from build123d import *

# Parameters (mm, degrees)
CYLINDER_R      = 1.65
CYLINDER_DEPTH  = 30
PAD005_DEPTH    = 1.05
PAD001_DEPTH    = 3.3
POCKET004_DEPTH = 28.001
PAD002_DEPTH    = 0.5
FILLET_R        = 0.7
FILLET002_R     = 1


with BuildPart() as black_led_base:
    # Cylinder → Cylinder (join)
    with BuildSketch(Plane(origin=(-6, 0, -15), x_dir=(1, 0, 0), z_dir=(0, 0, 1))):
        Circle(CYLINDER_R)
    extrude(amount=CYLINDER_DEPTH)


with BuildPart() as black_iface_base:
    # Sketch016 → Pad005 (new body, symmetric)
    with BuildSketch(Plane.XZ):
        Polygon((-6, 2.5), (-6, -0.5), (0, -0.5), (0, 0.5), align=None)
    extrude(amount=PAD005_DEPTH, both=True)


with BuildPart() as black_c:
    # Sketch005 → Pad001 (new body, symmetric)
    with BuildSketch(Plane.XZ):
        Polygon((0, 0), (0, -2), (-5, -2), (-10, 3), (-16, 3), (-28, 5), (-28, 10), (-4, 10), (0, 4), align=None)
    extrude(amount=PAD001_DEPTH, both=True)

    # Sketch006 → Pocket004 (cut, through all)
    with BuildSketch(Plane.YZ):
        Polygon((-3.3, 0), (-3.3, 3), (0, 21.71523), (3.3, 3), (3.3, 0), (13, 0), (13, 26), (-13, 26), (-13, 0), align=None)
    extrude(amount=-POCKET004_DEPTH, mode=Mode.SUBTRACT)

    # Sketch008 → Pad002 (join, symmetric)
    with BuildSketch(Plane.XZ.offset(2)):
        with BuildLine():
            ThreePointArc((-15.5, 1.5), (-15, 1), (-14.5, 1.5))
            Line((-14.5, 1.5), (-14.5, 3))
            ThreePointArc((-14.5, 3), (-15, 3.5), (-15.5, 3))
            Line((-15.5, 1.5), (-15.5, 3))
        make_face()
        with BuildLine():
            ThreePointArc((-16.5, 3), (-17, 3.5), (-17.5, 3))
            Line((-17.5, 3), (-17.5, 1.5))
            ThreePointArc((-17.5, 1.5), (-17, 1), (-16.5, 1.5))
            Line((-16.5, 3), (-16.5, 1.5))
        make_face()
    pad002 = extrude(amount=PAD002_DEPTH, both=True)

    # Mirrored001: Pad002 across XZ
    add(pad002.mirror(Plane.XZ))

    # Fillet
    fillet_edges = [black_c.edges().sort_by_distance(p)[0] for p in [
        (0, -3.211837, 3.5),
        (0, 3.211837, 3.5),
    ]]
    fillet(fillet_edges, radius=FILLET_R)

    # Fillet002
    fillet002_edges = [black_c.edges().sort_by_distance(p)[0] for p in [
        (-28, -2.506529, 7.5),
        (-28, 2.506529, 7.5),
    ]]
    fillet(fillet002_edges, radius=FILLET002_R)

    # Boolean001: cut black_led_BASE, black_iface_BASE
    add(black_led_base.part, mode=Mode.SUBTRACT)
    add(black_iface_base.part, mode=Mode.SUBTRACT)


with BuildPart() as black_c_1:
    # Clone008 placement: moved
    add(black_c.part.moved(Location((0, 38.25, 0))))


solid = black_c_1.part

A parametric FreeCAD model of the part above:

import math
import FreeCAD as App
import Part
import Sketcher
Q = App.Units.Quantity


def edges_at(feature, points):
    """Names of the edges that pass closest to the given points."""
    edges = feature.Shape.Edges
    near = lambda p: min(range(len(edges)), key=lambda i: edges[i].distToShape(Part.Vertex(*p))[0])
    return sorted({f"Edge{near(p) + 1}" for p in points})


def add_polygon(sketch, points):
    """Adds a closed chain of lines whose ends are joined by coincident constraints."""
    first, n = sketch.GeometryCount, len(points)
    for a, b in zip(points, points[1:] + points[:1]):
        sketch.addGeometry(Part.LineSegment(App.Vector(*a, 0), App.Vector(*b, 0)), False)
    for i in range(n):
        sketch.addConstraint(Sketcher.Constraint("Coincident", first + i, 2, first + (i + 1) % n, 1))

doc = App.newDocument("Part")
params = doc.addObject("Spreadsheet::Sheet", "Params")
for row, (alias, value) in enumerate([
    ("sketch1_diameter", "3.3 mm"),
    ("pad1_length", "30 mm"),
    ("sketch2_width", "6 mm"),
    ("sketch2_height", "3 mm"),
    ("sketch2_height2", "1 mm"),
    ("pad2_length", "2.1 mm"),
    ("sketch3_width", "24 mm"),
    ("sketch3_width2", "6 mm"),
    ("sketch3_width3", "5 mm"),
    ("pad3_length", "6.6 mm"),
    ("sketch4_width", "26 mm"),
    ("sketch4_height", "3 mm"),
    ("sketch4_width2", "9.7 mm"),
    ("sketch5_radius", "0.5 mm"),
    ("sketch5_height", "1.5 mm"),
    ("pad4_length", "1 mm"),
    ("fillet_radius", "0.7 mm"),
    ("fillet2_radius", "1 mm"),
], start=1):
    params.set(f"A{row}", alias)
    params.set(f"B{row}", "=" + value)
    params.setAlias(f"B{row}", alias)

body = doc.addObject("PartDesign::Body", "Body")

sketch1 = body.newObject("Sketcher::SketchObject", "Sketch")
sketch1.AttachmentSupport = (doc.getObject("XY_Plane"), [""])
sketch1.MapMode = "FlatFace"
sketch1.AttachmentOffset = App.Placement(App.Vector(0, 0, -15), App.Rotation())
sketch1.addGeometry(Part.Circle(App.Vector(-6, 0, 0), App.Vector(0, 0, 1), 1.65), False)
sketch1.addConstraint(Sketcher.Constraint("PointOnObject", 0, 3, -1))
sketch1.addConstraint(Sketcher.Constraint("Diameter", 0, Q("3.3 mm")))
sketch1.addConstraint(Sketcher.Constraint("DistanceX", 0, 3, -1, 1, Q("6 mm")))
sketch1.setExpression("Constraints[1]", "Params.sketch1_diameter")
pad1 = body.newObject("PartDesign::Pad", "Pad")
pad1.Profile = sketch1
pad1.setExpression("Length", "Params.pad1_length")
body2 = doc.addObject("PartDesign::Body", "Body001")

sketch2 = body2.newObject("Sketcher::SketchObject", "Sketch001")
sketch2.AttachmentSupport = (doc.getObject("XZ_Plane001"), [""])
sketch2.MapMode = "FlatFace"
add_polygon(sketch2, [(-6, 2.5), (-6, -0.5), (0, -0.5), (0, 0.5)])
sketch2.addConstraint(Sketcher.Constraint("Vertical", 0))
sketch2.addConstraint(Sketcher.Constraint("Horizontal", 1))
sketch2.addConstraint(Sketcher.Constraint("Vertical", 2))
sketch2.addConstraint(Sketcher.Constraint("Symmetric", 1, 2, 2, 2, -1, 1))
sketch2.addConstraint(Sketcher.Constraint("DistanceX", 1, 1, 1, 2, Q("6 mm")))
sketch2.addConstraint(Sketcher.Constraint("DistanceY", 0, 2, 0, 1, Q("3 mm")))
sketch2.addConstraint(Sketcher.Constraint("DistanceY", 2, 1, 2, 2, Q("1 mm")))
sketch2.setExpression("Constraints[8]", "Params.sketch2_width")
sketch2.setExpression("Constraints[9]", "Params.sketch2_height")
sketch2.setExpression("Constraints[10]", "Params.sketch2_height2")
pad2 = body2.newObject("PartDesign::Pad", "Pad001")
pad2.Profile = sketch2
pad2.setExpression("Length", "Params.pad2_length")
pad2.Midplane = True
body3 = doc.addObject("PartDesign::Body", "Body002")

sketch3 = body3.newObject("Sketcher::SketchObject", "Sketch002")
sketch3.AttachmentSupport = (doc.getObject("XZ_Plane002"), [""])
sketch3.MapMode = "FlatFace"
add_polygon(sketch3, [(0, -2), (0, 4), (-4, 10), (-28, 10), (-28, 5), (-16, 3), (-10, 3), (-5, -2)])
sketch3.addConstraint(Sketcher.Constraint("Vertical", 0))
sketch3.addConstraint(Sketcher.Constraint("Horizontal", 2))
sketch3.addConstraint(Sketcher.Constraint("Vertical", 3))
sketch3.addConstraint(Sketcher.Constraint("Horizontal", 5))
sketch3.addConstraint(Sketcher.Constraint("Horizontal", 7))
sketch3.addConstraint(Sketcher.Constraint("PointOnObject", 0, 2, -2))
sketch3.addConstraint(Sketcher.Constraint("Equal", 5, 0))
sketch3.addConstraint(Sketcher.Constraint("Equal", 7, 3))
sketch3.addConstraint(Sketcher.Constraint("DistanceX", 2, 2, 2, 1, Q("24 mm")))
sketch3.addConstraint(Sketcher.Constraint("DistanceX", 5, 1, 5, 2, Q("6 mm")))
sketch3.addConstraint(Sketcher.Constraint("DistanceX", 7, 1, 7, 2, Q("5 mm")))
sketch3.addConstraint(Sketcher.Constraint("Angle", 6, Q("-45 deg")))
sketch3.addConstraint(Sketcher.Constraint("DistanceY", -1, 1, 0, 2, Q("4 mm")))
sketch3.addConstraint(Sketcher.Constraint("DistanceX", 1, 2, -1, 1, Q("4 mm")))
sketch3.addConstraint(Sketcher.Constraint("DistanceY", -1, 1, 1, 2, Q("10 mm")))
sketch3.addConstraint(Sketcher.Constraint("DistanceX", 4, 2, -1, 1, Q("16 mm")))
sketch3.setExpression("Constraints[16]", "Params.sketch3_width")
sketch3.setExpression("Constraints[17]", "Params.sketch3_width2")
sketch3.setExpression("Constraints[18]", "Params.sketch3_width3")
pad3 = body3.newObject("PartDesign::Pad", "Pad002")
pad3.Profile = sketch3
pad3.setExpression("Length", "Params.pad3_length")
pad3.Midplane = True

sketch4 = body3.newObject("Sketcher::SketchObject", "Sketch003")
sketch4.AttachmentSupport = (doc.getObject("YZ_Plane002"), [""])
sketch4.MapMode = "FlatFace"
add_polygon(sketch4, [(-3.3, 0), (-3.3, 3), (0, 21.71523), (3.3, 3), (3.3, 0), (13, 0), (13, 26), (-13, 26), (-13, 0)])
sketch4.addConstraint(Sketcher.Constraint("Vertical", 0))
sketch4.addConstraint(Sketcher.Constraint("Vertical", 3))
sketch4.addConstraint(Sketcher.Constraint("Horizontal", 4))
sketch4.addConstraint(Sketcher.Constraint("Vertical", 5))
sketch4.addConstraint(Sketcher.Constraint("Horizontal", 6))
sketch4.addConstraint(Sketcher.Constraint("Vertical", 7))
sketch4.addConstraint(Sketcher.Constraint("Horizontal", 8))
sketch4.addConstraint(Sketcher.Constraint("Symmetric", 4, 2, 7, 2, -1, 1))
sketch4.addConstraint(Sketcher.Constraint("Symmetric", 0, 2, 2, 2, -2))
sketch4.addConstraint(Sketcher.Constraint("PointOnObject", 1, 2, -2))
sketch4.addConstraint(Sketcher.Constraint("PointOnObject", 3, 2, -1))
sketch4.addConstraint(Sketcher.Constraint("Equal", 6, 5))
sketch4.addConstraint(Sketcher.Constraint("DistanceX", 6, 2, 6, 1, Q("26 mm")))
sketch4.addConstraint(Sketcher.Constraint("DistanceY", 0, 1, 0, 2, Q("3 mm")))
sketch4.addConstraint(Sketcher.Constraint("Angle", 1, Q("80 deg")))
sketch4.addConstraint(Sketcher.Constraint("DistanceX", 4, 1, 4, 2, Q("9.7 mm")))
sketch4.setExpression("Constraints[21]", "Params.sketch4_width")
sketch4.setExpression("Constraints[22]", "Params.sketch4_height")
sketch4.setExpression("Constraints[24]", "Params.sketch4_width2")
pocket1 = body3.newObject("PartDesign::Pocket", "Pocket")
pocket1.Profile = sketch4
pocket1.Type = "ThroughAll"

sketch5 = body3.newObject("Sketcher::SketchObject", "Sketch004")
sketch5.AttachmentSupport = (doc.getObject("XZ_Plane002"), [""])
sketch5.MapMode = "FlatFace"
sketch5.AttachmentOffset = App.Placement(App.Vector(0, 0, 2), App.Rotation())
sketch5.addGeometry(Part.ArcOfCircle(Part.Circle(App.Vector(-15, 1.5, 0), App.Vector(0, 0, 1), 0.5), math.radians(180), math.radians(360)), False)
sketch5.addGeometry(Part.LineSegment(App.Vector(-14.5, 1.5, 0), App.Vector(-14.5, 3, 0)), False)
sketch5.addGeometry(Part.ArcOfCircle(Part.Circle(App.Vector(-15, 3, 0), App.Vector(0, 0, 1), 0.5), math.radians(0), math.radians(180)), False)
sketch5.addGeometry(Part.LineSegment(App.Vector(-15.5, 3, 0), App.Vector(-15.5, 1.5, 0)), False)
sketch5.addGeometry(Part.ArcOfCircle(Part.Circle(App.Vector(-17, 3, 0), App.Vector(0, 0, 1), 0.5), math.radians(0), math.radians(180)), False)
sketch5.addGeometry(Part.LineSegment(App.Vector(-17.5, 3, 0), App.Vector(-17.5, 1.5, 0)), False)
sketch5.addGeometry(Part.ArcOfCircle(Part.Circle(App.Vector(-17, 1.5, 0), App.Vector(0, 0, 1), 0.5), math.radians(180), math.radians(360)), False)
sketch5.addGeometry(Part.LineSegment(App.Vector(-16.5, 1.5, 0), App.Vector(-16.5, 3, 0)), False)
sketch5.addConstraint(Sketcher.Constraint("Tangent", 0, 2, 1, 1))
sketch5.addConstraint(Sketcher.Constraint("Tangent", 1, 2, 2, 1))
sketch5.addConstraint(Sketcher.Constraint("Tangent", 2, 2, 3, 1))
sketch5.addConstraint(Sketcher.Constraint("Tangent", 3, 2, 0, 1))
sketch5.addConstraint(Sketcher.Constraint("Tangent", 4, 2, 5, 1))
sketch5.addConstraint(Sketcher.Constraint("Tangent", 5, 2, 6, 1))
sketch5.addConstraint(Sketcher.Constraint("Tangent", 6, 2, 7, 1))
sketch5.addConstraint(Sketcher.Constraint("Tangent", 7, 2, 4, 1))
sketch5.addConstraint(Sketcher.Constraint("Vertical", 1))
sketch5.addConstraint(Sketcher.Constraint("Vertical", 3))
sketch5.addConstraint(Sketcher.Constraint("Vertical", 5))
sketch5.addConstraint(Sketcher.Constraint("Vertical", 7))
sketch5.addConstraint(Sketcher.Constraint("Equal", 2, 4))
sketch5.addConstraint(Sketcher.Constraint("Horizontal", 2, 3, 4, 3))
sketch5.addConstraint(Sketcher.Constraint("Horizontal", 0, 3, 6, 3))
sketch5.addConstraint(Sketcher.Constraint("Radius", 0, Q("0.5 mm")))
sketch5.addConstraint(Sketcher.Constraint("DistanceY", 1, 1, 1, 2, Q("1.5 mm")))
sketch5.addConstraint(Sketcher.Constraint("DistanceX", 0, 3, -1, 1, Q("15 mm")))
sketch5.addConstraint(Sketcher.Constraint("DistanceY", -1, 1, 2, 3, Q("3 mm")))
sketch5.addConstraint(Sketcher.Constraint("DistanceX", 4, 3, -1, 1, Q("17 mm")))
sketch5.setExpression("Constraints[15]", "Params.sketch5_radius")
sketch5.setExpression("Constraints[16]", "Params.sketch5_height")
pad4 = body3.newObject("PartDesign::Pad", "Pad003")
pad4.Profile = sketch5
pad4.setExpression("Length", "Params.pad4_length")
pad4.Midplane = True
doc.recompute()

mirrored = body3.newObject("PartDesign::Mirrored", "Mirrored")
mirrored.Originals = [pad4]
mirrored.MirrorPlane = (doc.getObject("XZ_Plane002"), [""])
body3.Tip = mirrored
doc.recompute()

fillet = body3.newObject("PartDesign::Fillet", "Fillet")
fillet.Base = (mirrored, edges_at(mirrored, [(0, -3.212, 3.5), (0, 3.212, 3.5)]))
fillet.setExpression("Radius", "Params.fillet_radius")
doc.recompute()

fillet2 = body3.newObject("PartDesign::Fillet", "Fillet001")
fillet2.Base = (fillet, edges_at(fillet, [(-28, -2.507, 7.5), (-28, 2.507, 7.5)]))
fillet2.setExpression("Radius", "Params.fillet2_radius")
doc.recompute()

boolean = body3.newObject("PartDesign::Boolean", "Boolean")
boolean.Type = "Cut"
boolean.addObjects([body])
doc.recompute()

boolean2 = body3.newObject("PartDesign::Boolean", "Boolean001")
boolean2.Type = "Cut"
boolean2.addObjects([body2])
body4 = doc.addObject("PartDesign::Body", "Body003")
doc.recompute()

body3.Placement = App.Placement(App.Vector(0, 38.25, 0), App.Rotation(App.Vector(0, 0, 1), 0))
boolean3 = body4.newObject("PartDesign::Boolean", "Boolean002")
boolean3.Type = "Fuse"
boolean3.addObjects([body3])

doc.recompute()
